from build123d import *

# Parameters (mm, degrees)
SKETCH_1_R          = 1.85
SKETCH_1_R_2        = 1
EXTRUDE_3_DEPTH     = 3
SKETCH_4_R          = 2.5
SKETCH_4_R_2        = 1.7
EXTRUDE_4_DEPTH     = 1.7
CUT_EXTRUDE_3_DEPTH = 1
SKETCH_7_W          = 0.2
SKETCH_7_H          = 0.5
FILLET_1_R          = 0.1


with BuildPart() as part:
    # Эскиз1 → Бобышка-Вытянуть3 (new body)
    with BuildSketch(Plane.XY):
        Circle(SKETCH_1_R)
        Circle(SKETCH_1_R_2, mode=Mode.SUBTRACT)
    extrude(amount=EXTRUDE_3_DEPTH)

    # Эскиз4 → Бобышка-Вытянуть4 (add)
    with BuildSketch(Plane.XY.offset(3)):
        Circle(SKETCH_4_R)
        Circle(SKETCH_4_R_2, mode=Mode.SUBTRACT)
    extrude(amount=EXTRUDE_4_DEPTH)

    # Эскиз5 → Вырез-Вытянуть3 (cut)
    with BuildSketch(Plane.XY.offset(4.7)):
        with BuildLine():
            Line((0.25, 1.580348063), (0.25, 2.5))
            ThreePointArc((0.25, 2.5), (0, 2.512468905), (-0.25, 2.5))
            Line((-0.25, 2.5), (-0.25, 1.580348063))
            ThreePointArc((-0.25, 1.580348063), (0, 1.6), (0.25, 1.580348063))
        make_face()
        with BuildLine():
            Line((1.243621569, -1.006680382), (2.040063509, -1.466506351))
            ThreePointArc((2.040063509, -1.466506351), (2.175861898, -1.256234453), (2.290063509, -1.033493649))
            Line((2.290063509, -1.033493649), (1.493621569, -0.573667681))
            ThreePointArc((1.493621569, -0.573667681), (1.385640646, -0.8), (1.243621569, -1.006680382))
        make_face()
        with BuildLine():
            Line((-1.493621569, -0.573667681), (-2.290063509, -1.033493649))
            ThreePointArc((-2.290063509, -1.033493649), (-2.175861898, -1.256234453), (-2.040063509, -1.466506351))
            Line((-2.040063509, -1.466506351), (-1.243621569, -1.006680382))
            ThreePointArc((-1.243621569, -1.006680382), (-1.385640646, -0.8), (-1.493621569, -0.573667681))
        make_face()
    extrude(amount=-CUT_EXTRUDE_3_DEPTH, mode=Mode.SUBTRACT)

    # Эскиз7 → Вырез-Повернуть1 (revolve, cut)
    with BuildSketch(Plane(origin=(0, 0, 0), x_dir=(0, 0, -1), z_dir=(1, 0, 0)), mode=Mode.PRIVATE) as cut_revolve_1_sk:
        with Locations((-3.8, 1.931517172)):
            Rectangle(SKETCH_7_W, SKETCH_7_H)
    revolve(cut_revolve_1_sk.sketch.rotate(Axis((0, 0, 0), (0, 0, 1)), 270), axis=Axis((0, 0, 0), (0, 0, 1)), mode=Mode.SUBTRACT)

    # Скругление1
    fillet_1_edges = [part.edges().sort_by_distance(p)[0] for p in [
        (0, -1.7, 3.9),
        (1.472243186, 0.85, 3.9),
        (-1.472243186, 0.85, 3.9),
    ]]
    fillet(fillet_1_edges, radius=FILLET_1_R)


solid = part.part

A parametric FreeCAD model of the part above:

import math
import FreeCAD as App
import Part
import Sketcher
from FreeCAD import Vector
Q = App.Units.Quantity


def edges_at(feature, points):
    """Names of the edges that pass closest to the given points."""
    edges = feature.Shape.Edges
    near = lambda p: min(range(len(edges)), key=lambda i: edges[i].distToShape(Part.Vertex(*p))[0])
    return sorted({f"Edge{near(p) + 1}" for p in points})

doc = App.newDocument("Part")
params = doc.addObject("Spreadsheet::Sheet", "Params")
for row, (alias, value) in enumerate([
    ("sketch1_diameter", "2 mm"),
    ("sketch1_diameter2", "3.7 mm"),
    ("pad1_length", "3 mm"),
    ("sketch2_diameter", "5 mm"),
    ("sketch2_diameter2", "3.4 mm"),
    ("pad2_length", "1.7 mm"),
    ("sketch3_radius", "1.6 mm"),
    ("pocket1_length", "1 mm"),
    ("sketch4_width", "0.5 mm"),
    ("sketch4_height", "0.2 mm"),
    ("groove_angle", "360 deg"),
    ("fillet_radius", "0.1 mm"),
], start=1):
    params.set(f"A{row}", alias)
    params.set(f"B{row}", "=" + value)
    params.setAlias(f"B{row}", alias)

body = doc.addObject("PartDesign::Body", "Body")

# Sketch on XY plane
sketch1 = doc.addObject("Sketcher::SketchObject", "Sketch")
body.addObject(sketch1)
sketch1.AttachmentSupport = (doc.XY_Plane, [""])
sketch1.MapMode = "FlatFace"
sketch1.addGeometry([
    Part.Circle(Vector(0, 0, 0), Vector(0, 0, 1), 1.9),
    Part.Circle(Vector(0, 0, 0), Vector(0, 0, 1), 1),
], False)
sketch1.addConstraint([
    Sketcher.Constraint("Coincident", 0, 3, -1, 1),
    Sketcher.Constraint("Coincident", 1, 3, -1, 1),
    Sketcher.Constraint("Diameter", 1, 2.0),
    Sketcher.Constraint("Diameter", 0, 3.7),
])
sketch1.setExpression("Constraints[2]", "Params.sketch1_diameter")
sketch1.setExpression("Constraints[3]", "Params.sketch1_diameter2")
pad1 = doc.addObject("PartDesign::Pad", "Pad")
body.addObject(pad1)
pad1.Profile = sketch1
pad1.setExpression("Length", "Params.pad1_length")

# Sketch on XY plane
sketch2 = doc.addObject("Sketcher::SketchObject", "Sketch001")
body.addObject(sketch2)
sketch2.AttachmentSupport = (doc.XY_Plane, [""])
sketch2.MapMode = "FlatFace"
sketch2.AttachmentOffset = App.Placement(Vector(0, 0, 3), App.Rotation())
sketch2.addGeometry([
    Part.Circle(Vector(0, 0, 0), Vector(0, 0, 1), 2.5),
    Part.Circle(Vector(0, 0, 0), Vector(0, 0, 1), 1.7),
], False)
sketch2.addConstraint([
    Sketcher.Constraint("Coincident", 0, 3, -1, 1),
    Sketcher.Constraint("Coincident", 1, 3, -1, 1),
    Sketcher.Constraint("Diameter", 0, 5.0),
    Sketcher.Constraint("Diameter", 1, 3.4),
])
sketch2.setExpression("Constraints[2]", "Params.sketch2_diameter")
sketch2.setExpression("Constraints[3]", "Params.sketch2_diameter2")
pad2 = doc.addObject("PartDesign::Pad", "Pad001")
body.addObject(pad2)
pad2.Profile = sketch2
pad2.setExpression("Length", "Params.pad2_length")

# Sketch on XY plane
sketch3 = doc.addObject("Sketcher::SketchObject", "Sketch002")
body.addObject(sketch3)
sketch3.AttachmentSupport = (doc.XY_Plane, [""])
sketch3.MapMode = "FlatFace"
sketch3.AttachmentOffset = App.Placement(Vector(0, 0, 4.7), App.Rotation())
sketch3.addGeometry([
    Part.LineSegment(Vector(0.25, 1.58, 0), Vector(0.25, 2.5, 0)),  # 0
    Part.ArcOfCircle(Part.Circle(Vector(0, 0, 0), Vector(0, 0, 1), 2.51), math.radians(84.29), math.radians(95.71)),  # 1
    Part.LineSegment(Vector(-0.25, 2.5, 0), Vector(-0.25, 1.58, 0)),  # 2
    Part.ArcOfCircle(Part.Circle(Vector(0, 0, 0), Vector(0, 0, 1), 1.6), math.radians(81.01), math.radians(98.99)),  # 3
    Part.LineSegment(Vector(1.24, -1.01, 0), Vector(2.04, -1.47, 0)),  # 4
    Part.ArcOfCircle(Part.Circle(Vector(0, 0, 0), Vector(0, 0, 1), 2.51), math.radians(-35.71), math.radians(-24.29)),  # 5
    Part.LineSegment(Vector(2.29, -1.03, 0), Vector(1.49, -0.57, 0)),  # 6
    Part.ArcOfCircle(Part.Circle(Vector(0, 0, 0), Vector(0, 0, 1), 1.6), math.radians(-38.99), math.radians(-21.01)),  # 7
    Part.LineSegment(Vector(-1.49, -0.57, 0), Vector(-2.29, -1.03, 0)),  # 8
    Part.ArcOfCircle(Part.Circle(Vector(0, 0, 0), Vector(0, 0, 1), 2.51), math.radians(-155.71), math.radians(-144.29)),  # 9
    Part.LineSegment(Vector(-2.04, -1.47, 0), Vector(-1.24, -1.01, 0)),  # 10
    Part.ArcOfCircle(Part.Circle(Vector(0, 0, 0), Vector(0, 0, 1), 1.6), math.radians(-158.99), math.radians(-141.01)),  # 11
], False)
sketch3.addConstraint([
    Sketcher.Constraint("Coincident", 0, 2, 1, 1),
    Sketcher.Constraint("Coincident", 1, 2, 2, 1),
    Sketcher.Constraint("Coincident", 2, 2, 3, 2),
    Sketcher.Constraint("Coincident", 3, 1, 0, 1),
    Sketcher.Constraint("Coincident", 4, 2, 5, 1),
    Sketcher.Constraint("Coincident", 5, 2, 6, 1),
    Sketcher.Constraint("Coincident", 6, 2, 7, 2),
    Sketcher.Constraint("Coincident", 7, 1, 4, 1),
    Sketcher.Constraint("Coincident", 8, 2, 9, 1),
    Sketcher.Constraint("Coincident", 9, 2, 10, 1),
    Sketcher.Constraint("Coincident", 10, 2, 11, 2),
    Sketcher.Constraint("Coincident", 11, 1, 8, 1),
    Sketcher.Constraint("Vertical", 0),
    Sketcher.Constraint("Vertical", 2),
    Sketcher.Constraint("Coincident", 1, 3, -1, 1),
    Sketcher.Constraint("Coincident", 3, 3, -1, 1),
    Sketcher.Constraint("Coincident", 5, 3, -1, 1),
    Sketcher.Constraint("Coincident", 7, 3, -1, 1),
    Sketcher.Constraint("Coincident", 9, 3, -1, 1),
    Sketcher.Constraint("Coincident", 11, 3, -1, 1),
    Sketcher.Constraint("Equal", 1, 5),
    Sketcher.Constraint("Equal", 3, 7),
    Sketcher.Constraint("Equal", 5, 9),
    Sketcher.Constraint("Equal", 7, 11),
    Sketcher.Constraint("Parallel", 4, 6),
    Sketcher.Constraint("Parallel", 8, 10),
    Sketcher.Constraint("Horizontal", 0, 2, 1, 2),
    Sketcher.Constraint("Horizontal", 5, 2, 8, 2),
    Sketcher.Constraint("Horizontal", 4, 2, 9, 2),
    Sketcher.Constraint("Horizontal", 7, 1, 10, 2),
    Sketcher.Constraint("Equal", 4, 6),
    Sketcher.Constraint("Radius", 3, 1.6),
    Sketcher.Constraint("Angle", 4, Q("-30 deg")),
    Sketcher.Constraint("DistanceY", -1, 1, 0, 2, 2.5),
    Sketcher.Constraint("DistanceX", 1, 2, 0, 2, 0.5),
    Sketcher.Constraint("DistanceX", 4, 2, 5, 2, 0.25),
])
sketch3.setExpression("Constraints[31]", "Params.sketch3_radius")
pocket1 = doc.addObject("PartDesign::Pocket", "Pocket")
body.addObject(pocket1)
pocket1.Profile = sketch3
pocket1.setExpression("Length", "Params.pocket1_length")

# Sketch on YZ plane
sketch4 = doc.addObject("Sketcher::SketchObject", "Sketch003")
body.addObject(sketch4)
sketch4.AttachmentSupport = (doc.YZ_Plane, [""])
sketch4.MapMode = "FlatFace"
sketch4.addGeometry([
    Part.LineSegment(Vector(2.18, 3.9, 0), Vector(1.68, 3.9, 0)),
    Part.LineSegment(Vector(1.68, 3.9, 0), Vector(1.68, 3.7, 0)),
    Part.LineSegment(Vector(1.68, 3.7, 0), Vector(2.18, 3.7, 0)),
    Part.LineSegment(Vector(2.18, 3.7, 0), Vector(2.18, 3.9, 0)),
], False)
sketch4.addConstraint([
    Sketcher.Constraint("Coincident", 0, 2, 1, 1),
    Sketcher.Constraint("Coincident", 1, 2, 2, 1),
    Sketcher.Constraint("Coincident", 2, 2, 3, 1),
    Sketcher.Constraint("Coincident", 3, 2, 0, 1),
    Sketcher.Constraint("Horizontal", 0),
    Sketcher.Constraint("Vertical", 1),
    Sketcher.Constraint("Horizontal", 2),
    Sketcher.Constraint("Vertical", 3),
    Sketcher.Constraint("DistanceX", 0, 2, 0, 1, 0.5),
    Sketcher.Constraint("DistanceY", 1, 2, 1, 1, 0.2),
    Sketcher.Constraint("DistanceY", -1, 1, 0, 2, 3.9),
    Sketcher.Constraint("DistanceX", -1, 1, 0, 2, 1.681517),
])
sketch4.setExpression("Constraints[8]", "Params.sketch4_width")
sketch4.setExpression("Constraints[9]", "Params.sketch4_height")
groove = doc.addObject("PartDesign::Groove", "Groove")
body.addObject(groove)
groove.Profile = sketch4
groove.ReferenceAxis = (sketch4, ["V_Axis"])
groove.setExpression("Angle", "Params.groove_angle")
doc.recompute()

fillet = doc.addObject("PartDesign::Fillet", "Fillet")
body.addObject(fillet)
fillet.Base = (groove, edges_at(groove, [(0, -1.7, 3.9), (1.472, 0.85, 3.9), (-1.472, 0.85, 3.9)]))
fillet.setExpression("Radius", "Params.fillet_radius")

doc.recompute()
